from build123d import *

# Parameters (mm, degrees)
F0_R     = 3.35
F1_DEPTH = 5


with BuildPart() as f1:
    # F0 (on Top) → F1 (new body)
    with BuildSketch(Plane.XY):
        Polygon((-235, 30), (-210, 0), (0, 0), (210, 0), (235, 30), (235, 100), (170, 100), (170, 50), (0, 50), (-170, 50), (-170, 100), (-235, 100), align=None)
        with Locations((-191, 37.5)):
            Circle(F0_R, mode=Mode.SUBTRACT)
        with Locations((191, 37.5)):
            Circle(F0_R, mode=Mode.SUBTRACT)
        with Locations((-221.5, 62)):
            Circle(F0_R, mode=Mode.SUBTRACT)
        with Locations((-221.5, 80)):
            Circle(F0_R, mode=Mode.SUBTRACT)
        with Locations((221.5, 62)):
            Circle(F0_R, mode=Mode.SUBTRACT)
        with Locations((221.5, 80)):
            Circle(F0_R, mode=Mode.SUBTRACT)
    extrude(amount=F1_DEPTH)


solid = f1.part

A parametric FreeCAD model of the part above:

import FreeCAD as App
import Part
import Sketcher

V = App.Vector


def add_polygon(sketch, points):
    """Adds a closed chain of lines whose ends are joined by coincident constraints."""
    first, n = sketch.GeometryCount, len(points)
    for a, b in zip(points, points[1:] + points[:1]):
        sketch.addGeometry(Part.LineSegment(App.Vector(*a, 0), App.Vector(*b, 0)), False)
    for i in range(n):
        sketch.addConstraint(Sketcher.Constraint("Coincident", first + i, 2, first + (i + 1) % n, 1))

doc = App.newDocument("Part")
body = doc.addObject("PartDesign::Body", "Body")

# Sketch on XY plane
sketch1 = body.newObject("Sketcher::SketchObject", "Sketch")
sketch1.AttachmentSupport = (doc.getObject("XY_Plane"), [""])
sketch1.MapMode = "FlatFace"
add_polygon(sketch1, [(-235, 30), (-210, 0), (210, 0), (235, 30), (235, 100), (170, 100), (170, 50), (-170, 50), (-170, 100), (-235, 100)])  # lines 0-9
sketch1.addGeometry(Part.Circle(V(-191, 37.5, 0), V(0, 0, 1), 3.4), False)  # 10
sketch1.addGeometry(Part.Circle(V(191, 37.5, 0), V(0, 0, 1), 3.4), False)  # 11
sketch1.addGeometry(Part.Circle(V(-221.5, 62, 0), V(0, 0, 1), 3.4), False)  # 12
sketch1.addGeometry(Part.Circle(V(-221.5, 80, 0), V(0, 0, 1), 3.4), False)  # 13
sketch1.addGeometry(Part.Circle(V(221.5, 62, 0), V(0, 0, 1), 3.4), False)  # 14
sketch1.addGeometry(Part.Circle(V(221.5, 80, 0), V(0, 0, 1), 3.4), False)  # 15
sketch1.addConstraint(Sketcher.Constraint("Horizontal", 1))
sketch1.addConstraint(Sketcher.Constraint("Vertical", 3))
sketch1.addConstraint(Sketcher.Constraint("Horizontal", 4))
sketch1.addConstraint(Sketcher.Constraint("Vertical", 5))
sketch1.addConstraint(Sketcher.Constraint("Horizontal", 6))
sketch1.addConstraint(Sketcher.Constraint("Vertical", 7))
sketch1.addConstraint(Sketcher.Constraint("Horizontal", 8))
sketch1.addConstraint(Sketcher.Constraint("Vertical", 9))
sketch1.addConstraint(Sketcher.Constraint("Equal", 10, 11))
sketch1.addConstraint(Sketcher.Constraint("Equal", 11, 12))
sketch1.addConstraint(Sketcher.Constraint("Equal", 12, 13))
sketch1.addConstraint(Sketcher.Constraint("Equal", 13, 14))
sketch1.addConstraint(Sketcher.Constraint("Equal", 14, 15))
sketch1.addConstraint(Sketcher.Constraint("Symmetric", 0, 2, 1, 2, -1, 1))
sketch1.addConstraint(Sketcher.Constraint("Symmetric", 10, 3, 11, 3, -2))
sketch1.addConstraint(Sketcher.Constraint("Symmetric", 12, 3, 14, 3, -2))
sketch1.addConstraint(Sketcher.Constraint("Symmetric", 13, 3, 15, 3, -2))
sketch1.addConstraint(Sketcher.Constraint("Symmetric", 4, 2, 7, 2, -2))
sketch1.addConstraint(Sketcher.Constraint("Symmetric", 2, 2, 9, 2, -2))
sketch1.addConstraint(Sketcher.Constraint("Vertical", 12, 3, 13, 3))
sketch1.addConstraint(Sketcher.Constraint("Diameter", 10, 6.7))
sketch1.addConstraint(Sketcher.Constraint("DistanceX", 1, 1, 1, 2, 420.0))
sketch1.addConstraint(Sketcher.Constraint("DistanceX", 4, 2, 4, 1, 65.0))
sketch1.addConstraint(Sketcher.Constraint("DistanceX", 6, 2, 6, 1, 340.0))
sketch1.addConstraint(Sketcher.Constraint("DistanceY", 3, 1, 3, 2, 70.0))
sketch1.addConstraint(Sketcher.Constraint("DistanceY", 5, 2, 5, 1, 50.0))
sketch1.addConstraint(Sketcher.Constraint("DistanceX", 10, 3, -1, 1, 191.0))
sketch1.addConstraint(Sketcher.Constraint("DistanceY", -1, 1, 12, 3, 62.0))
sketch1.addConstraint(Sketcher.Constraint("DistanceY", -1, 1, 13, 3, 80.0))
sketch1.addConstraint(Sketcher.Constraint("DistanceY", -1, 1, 2, 2, 30.0))
sketch1.addConstraint(Sketcher.Constraint("DistanceX", 12, 3, 14, 3, 443.0))
sketch1.addConstraint(Sketcher.Constraint("DistanceY", -1, 1, 10, 3, 37.5))
pad1 = body.newObject("PartDesign::Pad", "Pad")
pad1.Profile = sketch1
pad1.Length = 5

doc.recompute()
